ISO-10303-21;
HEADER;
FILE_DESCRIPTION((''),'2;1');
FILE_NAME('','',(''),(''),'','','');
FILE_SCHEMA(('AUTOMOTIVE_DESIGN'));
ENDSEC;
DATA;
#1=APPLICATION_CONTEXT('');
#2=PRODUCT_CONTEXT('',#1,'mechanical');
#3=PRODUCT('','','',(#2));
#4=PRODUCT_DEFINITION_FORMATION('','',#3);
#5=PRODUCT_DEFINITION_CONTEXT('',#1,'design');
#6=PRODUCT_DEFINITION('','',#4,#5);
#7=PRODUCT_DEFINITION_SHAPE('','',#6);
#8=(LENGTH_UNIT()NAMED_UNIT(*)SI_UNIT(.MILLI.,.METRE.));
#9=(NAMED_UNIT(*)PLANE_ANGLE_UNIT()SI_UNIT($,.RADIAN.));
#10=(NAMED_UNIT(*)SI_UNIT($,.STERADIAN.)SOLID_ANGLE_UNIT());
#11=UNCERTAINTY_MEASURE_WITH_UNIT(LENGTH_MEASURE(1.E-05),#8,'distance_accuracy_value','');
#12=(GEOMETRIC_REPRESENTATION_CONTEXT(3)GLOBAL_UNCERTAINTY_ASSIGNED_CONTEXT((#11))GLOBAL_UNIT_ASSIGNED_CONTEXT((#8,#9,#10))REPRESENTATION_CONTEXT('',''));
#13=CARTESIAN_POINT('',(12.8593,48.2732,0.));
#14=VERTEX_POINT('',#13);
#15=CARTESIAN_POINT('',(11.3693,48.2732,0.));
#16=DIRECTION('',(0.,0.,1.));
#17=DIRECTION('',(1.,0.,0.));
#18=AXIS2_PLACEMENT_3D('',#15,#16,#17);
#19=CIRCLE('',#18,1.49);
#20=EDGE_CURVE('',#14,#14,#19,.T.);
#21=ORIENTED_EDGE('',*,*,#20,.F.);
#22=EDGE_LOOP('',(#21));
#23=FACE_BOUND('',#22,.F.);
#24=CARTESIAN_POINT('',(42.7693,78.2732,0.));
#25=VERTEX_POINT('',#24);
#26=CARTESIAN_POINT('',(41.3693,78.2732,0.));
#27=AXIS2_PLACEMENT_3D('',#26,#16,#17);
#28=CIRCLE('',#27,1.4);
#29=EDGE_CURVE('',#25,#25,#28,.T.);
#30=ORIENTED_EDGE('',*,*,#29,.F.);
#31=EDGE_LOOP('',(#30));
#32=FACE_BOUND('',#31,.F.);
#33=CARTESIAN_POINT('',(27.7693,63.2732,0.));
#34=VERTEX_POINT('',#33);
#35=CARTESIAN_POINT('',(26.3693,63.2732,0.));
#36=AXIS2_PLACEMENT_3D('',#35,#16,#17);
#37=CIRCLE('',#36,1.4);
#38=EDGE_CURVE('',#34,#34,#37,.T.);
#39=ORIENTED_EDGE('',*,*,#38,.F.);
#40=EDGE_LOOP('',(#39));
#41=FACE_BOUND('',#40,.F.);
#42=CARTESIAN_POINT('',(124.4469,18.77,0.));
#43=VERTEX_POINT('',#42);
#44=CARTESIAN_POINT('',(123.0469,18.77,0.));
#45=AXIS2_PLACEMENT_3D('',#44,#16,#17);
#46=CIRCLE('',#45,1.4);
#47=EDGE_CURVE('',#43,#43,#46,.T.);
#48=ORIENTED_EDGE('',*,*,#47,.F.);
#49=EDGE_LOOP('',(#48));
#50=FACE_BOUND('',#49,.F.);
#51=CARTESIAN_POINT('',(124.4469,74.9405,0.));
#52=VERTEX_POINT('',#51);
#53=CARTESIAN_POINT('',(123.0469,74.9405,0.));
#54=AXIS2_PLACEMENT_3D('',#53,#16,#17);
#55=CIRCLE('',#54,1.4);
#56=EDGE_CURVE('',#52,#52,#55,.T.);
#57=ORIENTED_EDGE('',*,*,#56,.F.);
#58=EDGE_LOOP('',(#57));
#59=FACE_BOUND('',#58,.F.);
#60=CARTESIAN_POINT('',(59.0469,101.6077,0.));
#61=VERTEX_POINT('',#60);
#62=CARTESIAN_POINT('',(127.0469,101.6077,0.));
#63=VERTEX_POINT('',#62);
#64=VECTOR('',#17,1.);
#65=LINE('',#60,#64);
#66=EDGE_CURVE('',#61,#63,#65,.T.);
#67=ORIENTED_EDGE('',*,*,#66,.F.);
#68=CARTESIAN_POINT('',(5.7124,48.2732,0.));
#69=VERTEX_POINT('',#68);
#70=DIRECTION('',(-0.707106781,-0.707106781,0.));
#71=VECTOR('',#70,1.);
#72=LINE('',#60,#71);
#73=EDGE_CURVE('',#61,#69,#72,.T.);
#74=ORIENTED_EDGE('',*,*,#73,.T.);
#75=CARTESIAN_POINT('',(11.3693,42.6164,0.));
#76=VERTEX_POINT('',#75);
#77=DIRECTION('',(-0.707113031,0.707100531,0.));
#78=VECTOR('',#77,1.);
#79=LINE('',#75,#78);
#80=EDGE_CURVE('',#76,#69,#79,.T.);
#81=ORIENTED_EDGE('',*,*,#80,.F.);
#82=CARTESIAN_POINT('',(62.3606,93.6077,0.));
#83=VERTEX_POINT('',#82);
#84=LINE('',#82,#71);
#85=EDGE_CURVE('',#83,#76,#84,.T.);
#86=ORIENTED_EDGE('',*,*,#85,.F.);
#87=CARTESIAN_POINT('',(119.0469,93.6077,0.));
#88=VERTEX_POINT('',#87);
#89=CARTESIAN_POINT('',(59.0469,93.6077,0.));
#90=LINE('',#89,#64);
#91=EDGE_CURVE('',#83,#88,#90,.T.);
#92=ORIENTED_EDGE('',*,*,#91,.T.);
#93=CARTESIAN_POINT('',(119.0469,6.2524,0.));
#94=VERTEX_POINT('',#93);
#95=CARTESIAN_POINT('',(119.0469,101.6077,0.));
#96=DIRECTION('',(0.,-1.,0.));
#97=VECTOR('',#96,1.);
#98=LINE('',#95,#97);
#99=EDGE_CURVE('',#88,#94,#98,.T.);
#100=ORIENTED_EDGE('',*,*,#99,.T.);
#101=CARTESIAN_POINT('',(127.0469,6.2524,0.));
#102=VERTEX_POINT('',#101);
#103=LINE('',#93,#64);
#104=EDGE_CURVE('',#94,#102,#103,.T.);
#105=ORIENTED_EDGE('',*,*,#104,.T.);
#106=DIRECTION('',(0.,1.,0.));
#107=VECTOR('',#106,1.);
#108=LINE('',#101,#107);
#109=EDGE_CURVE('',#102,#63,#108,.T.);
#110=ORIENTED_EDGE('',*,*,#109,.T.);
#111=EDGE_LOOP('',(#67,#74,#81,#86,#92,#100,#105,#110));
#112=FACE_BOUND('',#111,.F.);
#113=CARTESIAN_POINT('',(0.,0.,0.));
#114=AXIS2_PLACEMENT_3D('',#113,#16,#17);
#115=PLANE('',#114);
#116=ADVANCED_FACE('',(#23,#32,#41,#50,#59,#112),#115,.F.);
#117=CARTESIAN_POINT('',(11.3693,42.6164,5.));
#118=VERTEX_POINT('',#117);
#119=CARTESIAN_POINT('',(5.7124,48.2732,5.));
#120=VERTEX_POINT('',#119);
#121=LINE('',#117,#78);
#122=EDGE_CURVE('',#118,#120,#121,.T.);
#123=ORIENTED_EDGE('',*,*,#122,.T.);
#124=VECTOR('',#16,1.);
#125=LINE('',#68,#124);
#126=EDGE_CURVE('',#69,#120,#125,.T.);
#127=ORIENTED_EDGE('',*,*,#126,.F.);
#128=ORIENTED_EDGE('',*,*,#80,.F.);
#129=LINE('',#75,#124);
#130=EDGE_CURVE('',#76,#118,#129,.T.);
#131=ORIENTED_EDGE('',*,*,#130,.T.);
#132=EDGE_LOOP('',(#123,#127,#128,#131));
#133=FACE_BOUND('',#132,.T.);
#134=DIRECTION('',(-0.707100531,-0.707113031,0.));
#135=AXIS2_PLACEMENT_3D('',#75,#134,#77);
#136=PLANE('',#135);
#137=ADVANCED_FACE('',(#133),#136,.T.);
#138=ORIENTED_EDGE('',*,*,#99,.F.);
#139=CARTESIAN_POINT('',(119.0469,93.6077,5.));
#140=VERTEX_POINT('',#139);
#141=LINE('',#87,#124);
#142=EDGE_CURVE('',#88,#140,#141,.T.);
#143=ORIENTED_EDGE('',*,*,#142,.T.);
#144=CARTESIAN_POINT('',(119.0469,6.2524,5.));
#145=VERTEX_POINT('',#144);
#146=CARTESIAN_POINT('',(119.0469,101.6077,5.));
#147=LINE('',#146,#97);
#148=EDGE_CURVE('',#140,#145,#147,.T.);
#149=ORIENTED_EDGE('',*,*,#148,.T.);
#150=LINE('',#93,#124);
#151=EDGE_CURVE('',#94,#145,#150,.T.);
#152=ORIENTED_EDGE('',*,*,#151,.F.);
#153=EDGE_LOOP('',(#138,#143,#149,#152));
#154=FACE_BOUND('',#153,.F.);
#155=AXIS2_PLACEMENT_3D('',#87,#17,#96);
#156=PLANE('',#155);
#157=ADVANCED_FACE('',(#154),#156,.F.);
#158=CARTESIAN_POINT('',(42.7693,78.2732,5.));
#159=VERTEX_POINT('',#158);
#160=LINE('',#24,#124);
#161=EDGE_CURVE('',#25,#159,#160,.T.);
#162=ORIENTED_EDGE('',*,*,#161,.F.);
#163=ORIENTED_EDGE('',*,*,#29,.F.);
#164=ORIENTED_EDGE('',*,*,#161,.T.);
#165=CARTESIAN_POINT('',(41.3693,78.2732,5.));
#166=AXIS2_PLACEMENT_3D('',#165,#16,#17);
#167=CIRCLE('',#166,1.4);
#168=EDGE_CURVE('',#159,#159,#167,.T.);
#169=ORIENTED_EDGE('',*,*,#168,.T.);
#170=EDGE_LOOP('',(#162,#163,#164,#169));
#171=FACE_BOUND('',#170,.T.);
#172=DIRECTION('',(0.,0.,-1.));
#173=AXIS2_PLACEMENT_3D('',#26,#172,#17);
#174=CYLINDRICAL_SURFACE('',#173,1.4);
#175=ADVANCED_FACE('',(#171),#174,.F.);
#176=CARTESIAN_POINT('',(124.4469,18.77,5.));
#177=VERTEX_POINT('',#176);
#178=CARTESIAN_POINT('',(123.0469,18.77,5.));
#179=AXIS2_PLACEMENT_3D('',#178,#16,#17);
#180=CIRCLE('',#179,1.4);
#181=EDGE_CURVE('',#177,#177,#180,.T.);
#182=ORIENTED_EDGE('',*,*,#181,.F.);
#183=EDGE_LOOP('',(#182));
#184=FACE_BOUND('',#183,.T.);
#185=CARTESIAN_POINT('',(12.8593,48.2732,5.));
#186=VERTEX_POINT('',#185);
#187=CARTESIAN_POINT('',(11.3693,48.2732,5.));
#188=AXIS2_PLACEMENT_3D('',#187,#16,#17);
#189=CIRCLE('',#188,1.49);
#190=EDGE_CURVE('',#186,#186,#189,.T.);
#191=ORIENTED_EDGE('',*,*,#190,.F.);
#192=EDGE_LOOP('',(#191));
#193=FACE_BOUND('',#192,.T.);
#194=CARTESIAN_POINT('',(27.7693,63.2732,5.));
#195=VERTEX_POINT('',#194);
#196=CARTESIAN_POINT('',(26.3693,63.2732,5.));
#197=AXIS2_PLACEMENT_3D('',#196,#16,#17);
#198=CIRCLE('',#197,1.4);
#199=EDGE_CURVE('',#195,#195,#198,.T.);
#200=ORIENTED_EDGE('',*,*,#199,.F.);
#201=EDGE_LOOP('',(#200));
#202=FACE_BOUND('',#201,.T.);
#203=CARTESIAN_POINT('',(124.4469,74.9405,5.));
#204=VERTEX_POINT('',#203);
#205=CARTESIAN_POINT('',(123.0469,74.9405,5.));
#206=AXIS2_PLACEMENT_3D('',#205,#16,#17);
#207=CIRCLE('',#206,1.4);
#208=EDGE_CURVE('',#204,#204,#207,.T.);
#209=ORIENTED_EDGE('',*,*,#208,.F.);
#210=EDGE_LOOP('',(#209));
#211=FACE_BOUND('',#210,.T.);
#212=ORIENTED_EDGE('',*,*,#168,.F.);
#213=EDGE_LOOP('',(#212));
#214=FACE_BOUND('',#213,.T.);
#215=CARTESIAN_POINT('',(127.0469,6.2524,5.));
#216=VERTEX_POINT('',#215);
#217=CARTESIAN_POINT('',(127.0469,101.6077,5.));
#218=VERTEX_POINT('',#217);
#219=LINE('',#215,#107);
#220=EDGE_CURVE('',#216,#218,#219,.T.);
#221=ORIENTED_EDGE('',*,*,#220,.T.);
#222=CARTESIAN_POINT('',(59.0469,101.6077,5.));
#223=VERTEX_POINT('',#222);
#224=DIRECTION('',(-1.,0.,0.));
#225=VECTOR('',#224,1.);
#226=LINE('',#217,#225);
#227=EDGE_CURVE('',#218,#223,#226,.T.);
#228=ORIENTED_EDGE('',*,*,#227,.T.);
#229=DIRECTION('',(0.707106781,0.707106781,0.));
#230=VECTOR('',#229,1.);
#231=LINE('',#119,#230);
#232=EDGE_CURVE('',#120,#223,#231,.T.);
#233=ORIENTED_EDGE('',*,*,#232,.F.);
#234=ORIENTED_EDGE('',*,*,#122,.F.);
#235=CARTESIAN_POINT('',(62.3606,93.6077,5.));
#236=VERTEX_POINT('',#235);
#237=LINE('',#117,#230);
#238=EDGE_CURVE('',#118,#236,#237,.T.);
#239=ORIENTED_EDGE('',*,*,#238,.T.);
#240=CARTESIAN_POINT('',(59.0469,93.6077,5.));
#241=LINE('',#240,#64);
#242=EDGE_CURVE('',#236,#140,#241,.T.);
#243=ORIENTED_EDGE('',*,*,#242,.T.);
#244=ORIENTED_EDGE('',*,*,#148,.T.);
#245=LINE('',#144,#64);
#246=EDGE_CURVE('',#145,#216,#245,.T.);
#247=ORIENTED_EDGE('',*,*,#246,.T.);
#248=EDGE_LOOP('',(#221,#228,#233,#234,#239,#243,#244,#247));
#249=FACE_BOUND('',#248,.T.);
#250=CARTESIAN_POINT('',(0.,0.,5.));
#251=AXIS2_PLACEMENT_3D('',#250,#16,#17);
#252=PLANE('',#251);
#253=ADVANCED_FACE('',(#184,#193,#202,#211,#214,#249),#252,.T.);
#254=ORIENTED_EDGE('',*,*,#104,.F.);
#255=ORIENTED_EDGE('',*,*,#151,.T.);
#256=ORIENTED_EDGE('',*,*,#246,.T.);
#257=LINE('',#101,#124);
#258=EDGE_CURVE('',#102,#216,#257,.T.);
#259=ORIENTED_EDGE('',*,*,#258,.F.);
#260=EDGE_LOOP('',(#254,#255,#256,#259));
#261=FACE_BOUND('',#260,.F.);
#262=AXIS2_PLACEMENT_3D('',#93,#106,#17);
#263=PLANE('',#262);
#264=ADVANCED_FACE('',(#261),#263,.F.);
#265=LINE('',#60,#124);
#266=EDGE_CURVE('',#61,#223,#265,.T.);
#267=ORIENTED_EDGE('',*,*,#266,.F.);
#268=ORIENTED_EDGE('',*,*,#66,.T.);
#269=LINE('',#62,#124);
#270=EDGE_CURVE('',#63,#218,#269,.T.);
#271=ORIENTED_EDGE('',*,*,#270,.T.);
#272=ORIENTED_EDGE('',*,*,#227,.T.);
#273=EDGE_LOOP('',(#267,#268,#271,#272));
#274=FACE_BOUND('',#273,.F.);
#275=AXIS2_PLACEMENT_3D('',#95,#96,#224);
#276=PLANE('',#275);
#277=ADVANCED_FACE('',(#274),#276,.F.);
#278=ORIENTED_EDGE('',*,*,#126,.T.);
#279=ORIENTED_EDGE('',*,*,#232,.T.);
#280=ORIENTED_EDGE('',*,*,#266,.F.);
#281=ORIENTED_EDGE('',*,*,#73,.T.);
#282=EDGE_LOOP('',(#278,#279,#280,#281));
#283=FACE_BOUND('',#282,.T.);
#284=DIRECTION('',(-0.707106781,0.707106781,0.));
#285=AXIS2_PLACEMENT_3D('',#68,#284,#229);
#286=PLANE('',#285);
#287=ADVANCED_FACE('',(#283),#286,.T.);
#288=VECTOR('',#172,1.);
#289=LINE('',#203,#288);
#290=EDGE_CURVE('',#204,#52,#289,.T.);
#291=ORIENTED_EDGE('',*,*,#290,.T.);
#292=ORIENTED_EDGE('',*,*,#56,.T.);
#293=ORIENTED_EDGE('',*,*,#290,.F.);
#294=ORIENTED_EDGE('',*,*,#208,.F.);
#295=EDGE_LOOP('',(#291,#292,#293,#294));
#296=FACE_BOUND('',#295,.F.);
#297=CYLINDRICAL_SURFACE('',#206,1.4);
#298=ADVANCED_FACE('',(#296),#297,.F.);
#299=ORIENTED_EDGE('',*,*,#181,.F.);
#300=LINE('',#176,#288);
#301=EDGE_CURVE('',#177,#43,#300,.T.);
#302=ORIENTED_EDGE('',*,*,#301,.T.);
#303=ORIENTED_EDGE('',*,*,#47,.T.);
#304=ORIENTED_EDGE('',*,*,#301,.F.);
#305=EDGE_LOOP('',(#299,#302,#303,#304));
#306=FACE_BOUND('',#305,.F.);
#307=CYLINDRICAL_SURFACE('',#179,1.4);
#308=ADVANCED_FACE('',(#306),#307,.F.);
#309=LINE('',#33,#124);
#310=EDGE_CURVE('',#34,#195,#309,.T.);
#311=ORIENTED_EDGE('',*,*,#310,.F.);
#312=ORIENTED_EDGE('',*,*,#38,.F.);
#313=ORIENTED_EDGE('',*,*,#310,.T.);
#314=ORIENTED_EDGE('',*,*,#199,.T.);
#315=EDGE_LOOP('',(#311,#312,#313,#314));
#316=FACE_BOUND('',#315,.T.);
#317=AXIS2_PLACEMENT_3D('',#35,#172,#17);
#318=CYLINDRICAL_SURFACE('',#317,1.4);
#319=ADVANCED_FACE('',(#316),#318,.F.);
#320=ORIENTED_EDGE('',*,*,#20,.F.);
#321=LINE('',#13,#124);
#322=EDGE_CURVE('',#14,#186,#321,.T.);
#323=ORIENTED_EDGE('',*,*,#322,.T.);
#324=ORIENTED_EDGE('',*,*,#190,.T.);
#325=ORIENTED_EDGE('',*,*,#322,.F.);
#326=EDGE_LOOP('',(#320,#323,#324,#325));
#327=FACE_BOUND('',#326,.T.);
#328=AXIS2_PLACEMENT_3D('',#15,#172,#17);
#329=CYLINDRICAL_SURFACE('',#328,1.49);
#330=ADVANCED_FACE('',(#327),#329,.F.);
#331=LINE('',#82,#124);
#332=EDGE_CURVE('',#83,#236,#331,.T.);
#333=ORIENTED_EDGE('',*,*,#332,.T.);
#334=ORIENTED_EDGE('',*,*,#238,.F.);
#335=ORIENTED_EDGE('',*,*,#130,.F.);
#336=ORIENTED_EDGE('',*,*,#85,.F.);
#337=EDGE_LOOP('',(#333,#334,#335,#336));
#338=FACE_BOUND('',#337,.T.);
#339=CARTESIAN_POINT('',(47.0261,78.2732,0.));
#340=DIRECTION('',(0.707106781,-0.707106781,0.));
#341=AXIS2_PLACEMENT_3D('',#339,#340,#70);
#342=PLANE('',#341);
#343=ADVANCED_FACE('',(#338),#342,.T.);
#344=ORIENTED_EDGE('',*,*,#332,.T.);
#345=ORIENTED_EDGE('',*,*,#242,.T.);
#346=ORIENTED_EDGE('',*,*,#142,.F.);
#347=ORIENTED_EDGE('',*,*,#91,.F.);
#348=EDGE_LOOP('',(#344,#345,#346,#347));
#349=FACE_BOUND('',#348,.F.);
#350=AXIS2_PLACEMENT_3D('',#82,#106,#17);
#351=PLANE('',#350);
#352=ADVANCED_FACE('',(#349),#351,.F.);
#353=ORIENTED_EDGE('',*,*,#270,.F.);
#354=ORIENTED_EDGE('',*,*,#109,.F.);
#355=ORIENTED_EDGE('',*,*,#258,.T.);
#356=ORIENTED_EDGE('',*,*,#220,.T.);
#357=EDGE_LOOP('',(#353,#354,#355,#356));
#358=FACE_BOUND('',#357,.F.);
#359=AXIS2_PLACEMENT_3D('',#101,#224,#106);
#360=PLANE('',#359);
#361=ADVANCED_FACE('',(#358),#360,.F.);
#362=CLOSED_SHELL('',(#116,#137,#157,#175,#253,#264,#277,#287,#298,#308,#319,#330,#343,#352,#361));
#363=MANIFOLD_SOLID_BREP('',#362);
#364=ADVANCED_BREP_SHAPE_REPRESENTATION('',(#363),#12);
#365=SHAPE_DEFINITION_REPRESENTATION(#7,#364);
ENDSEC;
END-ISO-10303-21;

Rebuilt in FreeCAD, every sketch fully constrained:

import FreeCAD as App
import Part
import Sketcher
from FreeCAD import Vector
Q = App.Units.Quantity


def add_polygon(sketch, points):
    """Adds a closed chain of lines whose ends are joined by coincident constraints."""
    first, n = sketch.GeometryCount, len(points)
    for a, b in zip(points, points[1:] + points[:1]):
        sketch.addGeometry(Part.LineSegment(App.Vector(*a, 0), App.Vector(*b, 0)), False)
    for i in range(n):
        sketch.addConstraint(Sketcher.Constraint("Coincident", first + i, 2, first + (i + 1) % n, 1))

doc = App.newDocument("Part")
body = doc.addObject("PartDesign::Body", "Body")

# Sketch on XY plane
sketch1 = body.newObject("Sketcher::SketchObject", "Sketch")
sketch1.AttachmentSupport = (doc.getObject("XY_Plane"), [""])
sketch1.MapMode = "FlatFace"
add_polygon(sketch1, [(5.7, 48.3), (11.4, 42.6), (62.4, 93.6), (119, 93.6), (119, 6.3), (127, 6.3), (127, 101.6), (59, 101.6)])  # lines 0-7
sketch1.addGeometry(Part.Circle(Vector(11.4, 48.3, 0), Vector(0, 0, 1), 1.5), False)  # 8
sketch1.addGeometry(Part.Circle(Vector(26.4, 63.3, 0), Vector(0, 0, 1), 1.4), False)  # 9
sketch1.addGeometry(Part.Circle(Vector(41.4, 78.3, 0), Vector(0, 0, 1), 1.4), False)  # 10
sketch1.addConstraint([
    Sketcher.Constraint("Horizontal", 2),
    Sketcher.Constraint("Vertical", 3),
    Sketcher.Constraint("Horizontal", 4),
    Sketcher.Constraint("Vertical", 5),
    Sketcher.Constraint("Horizontal", 6),
    Sketcher.Constraint("Equal", 9, 10),
    Sketcher.Constraint("Perpendicular", 0, 1),
    Sketcher.Constraint("Parallel", 1, 7),
    Sketcher.Constraint("Horizontal", 8, 3, 7, 2),
    Sketcher.Constraint("Vertical", 8, 3, 0, 2),
    Sketcher.Constraint("Diameter", 9, Q("2.8 mm")),
    Sketcher.Constraint("DistanceX", 4, 1, 4, 2, Q("8 mm")),
    Sketcher.Constraint("Distance", 0, Q("8 mm")),
    Sketcher.Constraint("DistanceY", 2, 2, 5, 2, Q("8 mm")),
    Sketcher.Constraint("DistanceX", 6, 2, 2, 2, Q("60 mm")),
    Sketcher.Constraint("Diameter", 8, Q("2.98 mm")),
    Sketcher.Constraint("Angle", 0, Q("-44.9995 deg")),
    Sketcher.Constraint("DistanceX", 8, 3, 9, 3, Q("15 mm")),
    Sketcher.Constraint("DistanceY", 8, 3, 9, 3, Q("15 mm")),
    Sketcher.Constraint("DistanceX", 9, 3, 10, 3, Q("15 mm")),
    Sketcher.Constraint("DistanceY", 9, 3, 10, 3, Q("15 mm")),
    Sketcher.Constraint("DistanceY", 3, 2, 3, 1, Q("87.3553 mm")),
    Sketcher.Constraint("DistanceX", -1, 1, 2, 2, Q("119.047 mm")),
    Sketcher.Constraint("DistanceY", 3, 2, 0, 2, Q("36.364 mm")),
    Sketcher.Constraint("DistanceY", -1, 1, 8, 3, Q("48.2732 mm")),
])
pad1 = body.newObject("PartDesign::Pad", "Pad")
pad1.Profile = sketch1
pad1.Length = 5

# Sketch on XY plane
sketch2 = body.newObject("Sketcher::SketchObject", "Sketch001")
sketch2.AttachmentSupport = (doc.getObject("XY_Plane"), [""])
sketch2.MapMode = "FlatFace"
sketch2.AttachmentOffset = App.Placement(Vector(0, 0, 5), App.Rotation())
sketch2.addGeometry([
    Part.Circle(Vector(123, 18.8, 0), Vector(0, 0, 1), 1.4),
    Part.Circle(Vector(123, 74.9, 0), Vector(0, 0, 1), 1.4),
], False)
sketch2.addConstraint([
    Sketcher.Constraint("Equal", 0, 1),
    Sketcher.Constraint("Vertical", 0, 3, 1, 3),
    Sketcher.Constraint("Diameter", 0, Q("2.8 mm")),
    Sketcher.Constraint("DistanceY", -1, 1, 0, 3, Q("18.77 mm")),
    Sketcher.Constraint("DistanceX", -1, 1, 0, 3, Q("123.047 mm")),
    Sketcher.Constraint("DistanceY", -1, 1, 1, 3, Q("74.9405 mm")),
])
pocket1 = body.newObject("PartDesign::Pocket", "Pocket")
pocket1.Profile = sketch2
pocket1.Length = 5

doc.recompute()
